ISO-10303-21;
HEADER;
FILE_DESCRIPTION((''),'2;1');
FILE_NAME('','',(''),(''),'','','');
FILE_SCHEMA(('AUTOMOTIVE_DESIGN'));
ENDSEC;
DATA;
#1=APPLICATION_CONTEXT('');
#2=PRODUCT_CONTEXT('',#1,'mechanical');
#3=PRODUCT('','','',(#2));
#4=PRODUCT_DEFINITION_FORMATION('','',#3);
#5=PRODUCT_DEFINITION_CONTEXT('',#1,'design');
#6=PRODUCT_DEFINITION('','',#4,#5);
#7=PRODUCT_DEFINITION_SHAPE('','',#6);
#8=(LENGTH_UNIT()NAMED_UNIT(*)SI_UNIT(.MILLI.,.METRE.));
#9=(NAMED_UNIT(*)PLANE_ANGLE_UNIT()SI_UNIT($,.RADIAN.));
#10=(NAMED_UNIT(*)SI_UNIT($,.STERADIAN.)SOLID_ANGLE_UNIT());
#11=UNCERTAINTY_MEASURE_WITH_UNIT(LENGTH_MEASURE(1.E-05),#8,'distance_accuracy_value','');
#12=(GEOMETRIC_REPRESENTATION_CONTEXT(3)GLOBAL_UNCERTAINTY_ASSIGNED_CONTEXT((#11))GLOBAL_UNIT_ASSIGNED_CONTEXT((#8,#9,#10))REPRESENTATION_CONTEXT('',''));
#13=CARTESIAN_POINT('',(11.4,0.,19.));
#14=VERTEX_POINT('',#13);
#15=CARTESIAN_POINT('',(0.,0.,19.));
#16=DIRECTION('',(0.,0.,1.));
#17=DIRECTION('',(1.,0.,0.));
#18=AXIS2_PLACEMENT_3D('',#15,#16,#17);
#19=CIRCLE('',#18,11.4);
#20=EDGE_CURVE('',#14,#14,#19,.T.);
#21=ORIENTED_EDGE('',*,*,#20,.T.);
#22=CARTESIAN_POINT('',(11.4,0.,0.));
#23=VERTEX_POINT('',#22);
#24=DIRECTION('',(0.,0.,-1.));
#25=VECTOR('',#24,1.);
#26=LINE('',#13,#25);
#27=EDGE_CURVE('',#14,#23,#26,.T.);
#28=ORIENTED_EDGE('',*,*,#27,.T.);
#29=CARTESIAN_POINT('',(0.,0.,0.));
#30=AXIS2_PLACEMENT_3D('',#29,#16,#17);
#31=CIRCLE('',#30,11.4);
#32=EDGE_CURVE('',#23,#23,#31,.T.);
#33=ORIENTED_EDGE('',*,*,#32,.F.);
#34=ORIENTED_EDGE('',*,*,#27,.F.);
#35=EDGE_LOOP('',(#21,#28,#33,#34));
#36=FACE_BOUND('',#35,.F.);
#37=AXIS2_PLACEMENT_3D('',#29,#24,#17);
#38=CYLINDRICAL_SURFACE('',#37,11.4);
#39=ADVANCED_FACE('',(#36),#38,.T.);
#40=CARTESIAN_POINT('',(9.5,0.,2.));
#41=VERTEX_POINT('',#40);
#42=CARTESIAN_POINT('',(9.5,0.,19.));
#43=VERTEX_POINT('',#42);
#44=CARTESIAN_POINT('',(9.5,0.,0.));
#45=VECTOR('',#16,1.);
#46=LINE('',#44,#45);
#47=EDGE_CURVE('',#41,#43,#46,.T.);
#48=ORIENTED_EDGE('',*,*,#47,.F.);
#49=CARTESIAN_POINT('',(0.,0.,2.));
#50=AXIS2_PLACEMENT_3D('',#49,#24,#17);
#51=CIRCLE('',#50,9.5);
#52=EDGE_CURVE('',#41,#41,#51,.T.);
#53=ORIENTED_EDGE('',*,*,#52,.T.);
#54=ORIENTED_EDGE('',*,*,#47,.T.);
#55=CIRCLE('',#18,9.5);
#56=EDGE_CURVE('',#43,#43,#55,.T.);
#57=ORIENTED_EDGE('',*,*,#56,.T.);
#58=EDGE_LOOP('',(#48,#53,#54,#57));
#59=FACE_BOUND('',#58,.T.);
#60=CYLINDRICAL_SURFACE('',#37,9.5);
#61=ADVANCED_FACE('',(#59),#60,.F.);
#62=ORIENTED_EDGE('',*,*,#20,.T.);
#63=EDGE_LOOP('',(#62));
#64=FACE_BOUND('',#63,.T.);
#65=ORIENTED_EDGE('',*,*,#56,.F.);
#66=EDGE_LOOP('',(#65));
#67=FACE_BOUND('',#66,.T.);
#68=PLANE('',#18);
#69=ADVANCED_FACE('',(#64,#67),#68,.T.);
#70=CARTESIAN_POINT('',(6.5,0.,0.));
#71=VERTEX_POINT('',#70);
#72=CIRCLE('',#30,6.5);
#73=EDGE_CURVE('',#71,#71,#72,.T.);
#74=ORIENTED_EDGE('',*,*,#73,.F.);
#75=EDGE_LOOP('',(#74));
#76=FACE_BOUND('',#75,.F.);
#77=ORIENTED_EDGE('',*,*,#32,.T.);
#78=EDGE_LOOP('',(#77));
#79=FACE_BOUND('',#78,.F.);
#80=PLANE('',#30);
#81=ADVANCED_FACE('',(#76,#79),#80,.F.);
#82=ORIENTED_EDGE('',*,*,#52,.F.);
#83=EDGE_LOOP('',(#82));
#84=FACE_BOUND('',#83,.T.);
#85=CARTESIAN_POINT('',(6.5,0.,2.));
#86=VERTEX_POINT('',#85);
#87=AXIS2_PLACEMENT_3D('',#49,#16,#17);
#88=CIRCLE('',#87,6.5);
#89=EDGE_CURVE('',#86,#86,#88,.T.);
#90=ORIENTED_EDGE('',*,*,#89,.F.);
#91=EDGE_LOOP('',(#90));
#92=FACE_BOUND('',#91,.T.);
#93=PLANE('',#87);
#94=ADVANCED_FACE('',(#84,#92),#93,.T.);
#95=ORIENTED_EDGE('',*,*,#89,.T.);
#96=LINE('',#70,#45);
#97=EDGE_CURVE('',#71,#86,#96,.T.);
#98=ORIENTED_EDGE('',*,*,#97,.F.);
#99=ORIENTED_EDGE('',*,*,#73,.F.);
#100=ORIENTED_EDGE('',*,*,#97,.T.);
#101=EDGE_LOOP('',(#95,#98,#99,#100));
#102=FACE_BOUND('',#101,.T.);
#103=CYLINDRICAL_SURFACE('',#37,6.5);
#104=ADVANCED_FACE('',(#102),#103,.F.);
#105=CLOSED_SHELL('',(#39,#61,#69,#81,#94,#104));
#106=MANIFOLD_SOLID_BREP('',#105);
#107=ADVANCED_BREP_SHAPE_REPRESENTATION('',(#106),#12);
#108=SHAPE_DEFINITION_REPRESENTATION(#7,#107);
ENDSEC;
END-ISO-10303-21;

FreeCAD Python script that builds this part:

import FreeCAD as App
import Part
import Sketcher

V = App.Vector
Q = App.Units.Quantity

doc = App.newDocument("Part")
body = doc.addObject("PartDesign::Body", "Body")

# Sketch on XY plane
sketch1 = doc.addObject("Sketcher::SketchObject", "Sketch")
body.addObject(sketch1)
sketch1.AttachmentSupport = (doc.XY_Plane, [""])
sketch1.MapMode = "FlatFace"
sketch1.addGeometry([
    Part.Circle(V(0, 0, 0), V(0, 0, 1), 11),
    Part.Circle(V(0, 0, 0), V(0, 0, 1), 6),
], False)
sketch1.addConstraint([
    Sketcher.Constraint("Coincident", 0, 3, -1, 1),
    Sketcher.Constraint("Coincident", 1, 3, -1, 1),
    Sketcher.Constraint("Diameter", 1, Q("13 mm")),
    Sketcher.Constraint("Diameter", 0, Q("22.8 mm")),
])
pad1 = doc.addObject("PartDesign::Pad", "Pad")
body.addObject(pad1)
pad1.Profile = sketch1
pad1.Length = 2

# Sketch on XY plane
sketch2 = doc.addObject("Sketcher::SketchObject", "Sketch001")
body.addObject(sketch2)
sketch2.AttachmentSupport = (doc.XY_Plane, [""])
sketch2.MapMode = "FlatFace"
sketch2.addGeometry([
    Part.Circle(V(0, 0, 0), V(0, 0, 1), 11),
    Part.Circle(V(0, 0, 0), V(0, 0, 1), 10),
], False)
sketch2.addConstraint([
    Sketcher.Constraint("Coincident", 0, 3, -1, 1),
    Sketcher.Constraint("Coincident", 1, 3, -1, 1),
    Sketcher.Constraint("Diameter", 1, Q("19 mm")),
    Sketcher.Constraint("Diameter", 0, Q("22.8 mm")),
])
pad2 = doc.addObject("PartDesign::Pad", "Pad001")
body.addObject(pad2)
pad2.Profile = sketch2
pad2.Length = 19

doc.recompute()
